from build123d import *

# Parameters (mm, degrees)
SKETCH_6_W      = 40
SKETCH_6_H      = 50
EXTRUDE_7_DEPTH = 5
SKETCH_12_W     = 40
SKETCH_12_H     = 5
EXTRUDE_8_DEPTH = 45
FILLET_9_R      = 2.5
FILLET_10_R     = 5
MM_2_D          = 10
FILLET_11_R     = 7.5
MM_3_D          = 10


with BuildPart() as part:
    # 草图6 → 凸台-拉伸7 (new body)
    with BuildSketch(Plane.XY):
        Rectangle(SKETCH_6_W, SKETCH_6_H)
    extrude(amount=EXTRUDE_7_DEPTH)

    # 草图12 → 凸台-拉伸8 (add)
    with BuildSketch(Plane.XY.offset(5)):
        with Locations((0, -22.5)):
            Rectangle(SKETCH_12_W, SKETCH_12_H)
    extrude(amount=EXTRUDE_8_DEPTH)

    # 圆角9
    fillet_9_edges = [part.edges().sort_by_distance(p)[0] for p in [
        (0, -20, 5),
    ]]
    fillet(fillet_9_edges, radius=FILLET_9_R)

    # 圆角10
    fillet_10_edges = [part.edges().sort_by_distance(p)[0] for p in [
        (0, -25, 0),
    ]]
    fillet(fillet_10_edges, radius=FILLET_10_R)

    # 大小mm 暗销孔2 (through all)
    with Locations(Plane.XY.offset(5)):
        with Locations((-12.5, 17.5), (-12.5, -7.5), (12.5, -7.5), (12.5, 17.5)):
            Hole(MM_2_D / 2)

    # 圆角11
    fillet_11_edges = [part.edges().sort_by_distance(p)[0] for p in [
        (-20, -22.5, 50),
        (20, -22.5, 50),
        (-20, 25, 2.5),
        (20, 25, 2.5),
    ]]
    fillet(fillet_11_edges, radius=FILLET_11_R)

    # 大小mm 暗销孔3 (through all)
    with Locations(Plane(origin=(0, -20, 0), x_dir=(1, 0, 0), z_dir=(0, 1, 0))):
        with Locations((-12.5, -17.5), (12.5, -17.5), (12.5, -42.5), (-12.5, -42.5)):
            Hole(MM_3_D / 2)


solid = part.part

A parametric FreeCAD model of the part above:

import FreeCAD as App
import Part
import Sketcher

V = App.Vector
Q = App.Units.Quantity


def edges_at(feature, points):
    """Names of the edges that pass closest to the given points."""
    edges = feature.Shape.Edges
    near = lambda p: min(range(len(edges)), key=lambda i: edges[i].distToShape(Part.Vertex(*p))[0])
    return sorted({f"Edge{near(p) + 1}" for p in points})

doc = App.newDocument("Part")
body = doc.addObject("PartDesign::Body", "Body")

sketch1 = body.newObject("Sketcher::SketchObject", "Sketch")
sketch1.AttachmentSupport = (doc.getObject("XY_Plane"), [""])
sketch1.MapMode = "FlatFace"
sketch1.addGeometry([
    Part.LineSegment(V(-20, 25, 0), V(-20, -25, 0)),
    Part.LineSegment(V(-20, -25, 0), V(20, -25, 0)),
    Part.LineSegment(V(20, -25, 0), V(20, 25, 0)),
    Part.LineSegment(V(20, 25, 0), V(-20, 25, 0)),
], False)
sketch1.addConstraint([
    Sketcher.Constraint("Coincident", 0, 2, 1, 1),
    Sketcher.Constraint("Coincident", 1, 2, 2, 1),
    Sketcher.Constraint("Coincident", 2, 2, 3, 1),
    Sketcher.Constraint("Coincident", 3, 2, 0, 1),
    Sketcher.Constraint("Vertical", 0),
    Sketcher.Constraint("Horizontal", 1),
    Sketcher.Constraint("Vertical", 2),
    Sketcher.Constraint("Horizontal", 3),
    Sketcher.Constraint("Symmetric", 0, 2, 2, 2, -1, 1),
    Sketcher.Constraint("DistanceX", 1, 1, 1, 2, Q("40 mm")),
    Sketcher.Constraint("DistanceY", 0, 2, 0, 1, Q("50 mm")),
])
pad1 = body.newObject("PartDesign::Pad", "Pad")
pad1.Profile = sketch1
pad1.Length = 5

sketch2 = body.newObject("Sketcher::SketchObject", "Sketch001")
sketch2.AttachmentSupport = (doc.getObject("XY_Plane"), [""])
sketch2.MapMode = "FlatFace"
sketch2.AttachmentOffset = App.Placement(V(0, 0, 5), App.Rotation())
sketch2.addGeometry([
    Part.LineSegment(V(-20, -20, 0), V(-20, -25, 0)),
    Part.LineSegment(V(-20, -25, 0), V(20, -25, 0)),
    Part.LineSegment(V(20, -25, 0), V(20, -20, 0)),
    Part.LineSegment(V(20, -20, 0), V(-20, -20, 0)),
], False)
sketch2.addConstraint([
    Sketcher.Constraint("Coincident", 0, 2, 1, 1),
    Sketcher.Constraint("Coincident", 1, 2, 2, 1),
    Sketcher.Constraint("Coincident", 2, 2, 3, 1),
    Sketcher.Constraint("Coincident", 3, 2, 0, 1),
    Sketcher.Constraint("Vertical", 0),
    Sketcher.Constraint("Horizontal", 1),
    Sketcher.Constraint("Vertical", 2),
    Sketcher.Constraint("Horizontal", 3),
    Sketcher.Constraint("DistanceX", 1, 1, 1, 2, Q("40 mm")),
    Sketcher.Constraint("DistanceY", 0, 2, 0, 1, Q("5 mm")),
    Sketcher.Constraint("DistanceX", 0, 2, -1, 1, Q("20 mm")),
    Sketcher.Constraint("DistanceY", 0, 2, -1, 1, Q("25 mm")),
])
pad2 = body.newObject("PartDesign::Pad", "Pad001")
pad2.Profile = sketch2
pad2.Length = 45
doc.recompute()

fillet = body.newObject("PartDesign::Fillet", "Fillet")
fillet.Base = (pad2, edges_at(pad2, [(0, -20, 5)]))
fillet.Radius = 2.5
doc.recompute()

fillet2 = body.newObject("PartDesign::Fillet", "Fillet001")
fillet2.Base = (fillet, edges_at(fillet, [(0, -25, 0)]))
fillet2.Radius = 5

sketch3 = body.newObject("Sketcher::SketchObject", "Sketch002")
sketch3.AttachmentSupport = (doc.getObject("XY_Plane"), [""])
sketch3.MapMode = "FlatFace"
sketch3.AttachmentOffset = App.Placement(V(0, 0, 5), App.Rotation())
sketch3.addGeometry([
    Part.Circle(V(-12, 18, 0), V(0, 0, 1), 5),
    Part.Circle(V(-12, -8, 0), V(0, 0, 1), 5),
    Part.Circle(V(12, -8, 0), V(0, 0, 1), 5),
    Part.Circle(V(12, 18, 0), V(0, 0, 1), 5),
], False)
sketch3.addConstraint([
    Sketcher.Constraint("Equal", 0, 1),
    Sketcher.Constraint("Equal", 1, 2),
    Sketcher.Constraint("Equal", 2, 3),
    Sketcher.Constraint("Symmetric", 1, 3, 2, 3, -2),
    Sketcher.Constraint("Symmetric", 0, 3, 3, 3, -2),
    Sketcher.Constraint("Vertical", 0, 3, 1, 3),
    Sketcher.Constraint("Diameter", 0, Q("10 mm")),
    Sketcher.Constraint("DistanceY", 1, 3, 0, 3, Q("25 mm")),
    Sketcher.Constraint("DistanceX", 1, 3, 2, 3, Q("25 mm")),
    Sketcher.Constraint("DistanceY", -1, 1, 0, 3, Q("17.5 mm")),
])
doc.recompute()
hole = body.newObject("PartDesign::Hole", "Hole")
hole.Profile = sketch3
hole.ThreadType = "None"
hole.Diameter = 10
hole.DepthType = "ThroughAll"
doc.recompute()

fillet3 = body.newObject("PartDesign::Fillet", "Fillet002")
fillet3.Base = (hole, edges_at(hole, [
    (-20, -22.5, 50),
    (20, -22.5, 50),
    (-20, 25, 2.5),
    (20, 25, 2.5),
]))
fillet3.Radius = 7.5

sketch4 = body.newObject("Sketcher::SketchObject", "Sketch003")
sketch4.AttachmentSupport = (doc.getObject("XZ_Plane"), [""])
sketch4.MapMode = "FlatFace"
sketch4.AttachmentOffset = App.Placement(V(0, 0, 20), App.Rotation())
sketch4.addGeometry([
    Part.Circle(V(-12, 18, 0), V(0, 0, 1), 5),
    Part.Circle(V(12, 18, 0), V(0, 0, 1), 5),
    Part.Circle(V(12, 42, 0), V(0, 0, 1), 5),
    Part.Circle(V(-12, 42, 0), V(0, 0, 1), 5),
], False)
sketch4.addConstraint([
    Sketcher.Constraint("Equal", 0, 1),
    Sketcher.Constraint("Equal", 1, 2),
    Sketcher.Constraint("Equal", 2, 3),
    Sketcher.Constraint("Symmetric", 0, 3, 1, 3, -2),
    Sketcher.Constraint("Symmetric", 2, 3, 3, 3, -2),
    Sketcher.Constraint("Vertical", 1, 3, 2, 3),
    Sketcher.Constraint("Diameter", 0, Q("10 mm")),
    Sketcher.Constraint("DistanceX", 0, 3, 1, 3, Q("25 mm")),
    Sketcher.Constraint("DistanceY", 1, 3, 2, 3, Q("25 mm")),
    Sketcher.Constraint("DistanceY", -1, 1, 0, 3, Q("17.5 mm")),
])
doc.recompute()
hole2 = body.newObject("PartDesign::Hole", "Hole001")
hole2.Profile = sketch4
hole2.ThreadType = "None"
hole2.Diameter = 10
hole2.DepthType = "ThroughAll"
hole2.Reversed = True

doc.recompute()
